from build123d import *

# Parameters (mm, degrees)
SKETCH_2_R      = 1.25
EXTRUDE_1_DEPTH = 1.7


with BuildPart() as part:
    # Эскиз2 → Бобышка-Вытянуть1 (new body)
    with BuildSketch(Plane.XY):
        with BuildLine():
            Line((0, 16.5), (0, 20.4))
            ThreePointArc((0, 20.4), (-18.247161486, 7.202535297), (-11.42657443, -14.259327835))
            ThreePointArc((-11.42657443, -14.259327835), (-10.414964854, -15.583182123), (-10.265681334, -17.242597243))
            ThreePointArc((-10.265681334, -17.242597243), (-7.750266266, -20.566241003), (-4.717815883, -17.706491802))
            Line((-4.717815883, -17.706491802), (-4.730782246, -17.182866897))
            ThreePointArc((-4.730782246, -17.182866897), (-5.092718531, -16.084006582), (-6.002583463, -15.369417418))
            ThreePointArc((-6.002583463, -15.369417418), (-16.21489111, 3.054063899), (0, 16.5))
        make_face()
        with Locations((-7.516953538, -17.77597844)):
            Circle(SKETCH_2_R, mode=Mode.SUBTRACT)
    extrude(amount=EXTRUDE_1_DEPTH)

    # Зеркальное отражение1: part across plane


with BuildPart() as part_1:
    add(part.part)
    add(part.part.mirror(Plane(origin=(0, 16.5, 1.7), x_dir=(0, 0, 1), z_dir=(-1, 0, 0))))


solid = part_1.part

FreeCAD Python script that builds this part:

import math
import FreeCAD as App
import Part
import Sketcher
from FreeCAD import Vector
Q = App.Units.Quantity

doc = App.newDocument("Part")
body = doc.addObject("PartDesign::Body", "Body")

sketch1 = body.newObject("Sketcher::SketchObject", "Sketch")
sketch1.AttachmentSupport = (doc.getObject("XY_Plane"), [""])
sketch1.MapMode = "FlatFace"
sketch1.addGeometry(Part.LineSegment(Vector(0, 16.5, 0), Vector(0, 20.4, 0)), False)
sketch1.addGeometry(Part.ArcOfCircle(Part.Circle(Vector(0, 1.2, 0), Vector(0, 0, 1), 19.2), math.radians(90), math.radians(234)), False)
sketch1.addGeometry(Part.ArcOfCircle(Part.Circle(Vector(-13.2, -16.7, 0), Vector(0, 0, 1), 3), math.radians(-11), math.radians(54)), False)
sketch1.addGeometry(Part.ArcOfCircle(Part.Circle(Vector(-7.5, -17.8, 0), Vector(0, 0, 1), 2.8), math.radians(169), math.radians(361)), False)
sketch1.addGeometry(Part.LineSegment(Vector(-4.7, -17.7, 0), Vector(-4.7, -17.2, 0)), False)
sketch1.addGeometry(Part.ArcOfCircle(Part.Circle(Vector(-6.7, -17.2, 0), Vector(0, 0, 1), 2), math.radians(1), math.radians(69)), False)
sketch1.addGeometry(Part.ArcOfCircle(Part.Circle(Vector(0, 0, 0), Vector(0, 0, 1), 16.5), math.radians(90), math.radians(249)), False)
sketch1.addGeometry(Part.Circle(Vector(-7.5, -17.8, 0), Vector(0, 0, 1), 1.2), False)
sketch1.addConstraint(Sketcher.Constraint("Coincident", 0, 2, 1, 1))
sketch1.addConstraint(Sketcher.Constraint("Tangent", 1, 2, 2, 2))
sketch1.addConstraint(Sketcher.Constraint("Tangent", 2, 1, 3, 1))
sketch1.addConstraint(Sketcher.Constraint("Coincident", 3, 2, 4, 1))
sketch1.addConstraint(Sketcher.Constraint("Tangent", 4, 2, 5, 1))
sketch1.addConstraint(Sketcher.Constraint("Tangent", 5, 2, 6, 2))
sketch1.addConstraint(Sketcher.Constraint("Coincident", 6, 1, 0, 1))
sketch1.addConstraint(Sketcher.Constraint("Vertical", 0))
sketch1.addConstraint(Sketcher.Constraint("Coincident", 6, 3, -1, 1))
sketch1.addConstraint(Sketcher.Constraint("Coincident", 7, 3, 3, 3))
sketch1.addConstraint(Sketcher.Constraint("PointOnObject", 1, 3, -2))
sketch1.addConstraint(Sketcher.Constraint("PointOnObject", 0, 2, -2))
sketch1.addConstraint(Sketcher.Constraint("Radius", 2, Q("3 mm")))
sketch1.addConstraint(Sketcher.Constraint("Radius", 5, Q("2 mm")))
sketch1.addConstraint(Sketcher.Constraint("Diameter", 7, Q("2.5 mm")))
sketch1.addConstraint(Sketcher.Constraint("Radius", 3, Q("2.8 mm")))
sketch1.addConstraint(Sketcher.Constraint("Radius", 6, Q("16.5 mm")))
sketch1.addConstraint(Sketcher.Constraint("DistanceY", 0, 1, 0, 2, Q("3.9 mm")))
sketch1.addConstraint(Sketcher.Constraint("Radius", 1, Q("19.213235 mm")))
sketch1.addConstraint(Sketcher.Constraint("DistanceY", 3, 3, 5, 3, Q("0.543601 mm")))
sketch1.addConstraint(Sketcher.Constraint("DistanceX", 2, 1, 4, 2, Q("5.534899 mm")))
sketch1.addConstraint(Sketcher.Constraint("DistanceX", 5, 2, 4, 2, Q("1.271801 mm")))
sketch1.addConstraint(Sketcher.Constraint("DistanceY", 3, 2, -1, 1, Q("17.706492 mm")))
pad1 = body.newObject("PartDesign::Pad", "Pad")
pad1.Profile = sketch1
pad1.Length = 1.7
body2 = doc.addObject("PartDesign::Body", "Body001")
doc.recompute()

body2.BaseFeature = body
doc.recompute()

mirroring = doc.addObject("Part::Mirroring", "Mirroring")
mirroring.Source = body
mirroring.Base = Vector(0, 16.5, 1.7)
mirroring.Normal = Vector(-1, 0, 0)
body3 = doc.addObject("PartDesign::Body", "Body002")
body3.BaseFeature = mirroring
boolean = body2.newObject("PartDesign::Boolean", "Boolean")
boolean.Type = "Fuse"
boolean.addObjects([body3])
doc.recompute()
mirroring.Visibility = False

doc.recompute()
